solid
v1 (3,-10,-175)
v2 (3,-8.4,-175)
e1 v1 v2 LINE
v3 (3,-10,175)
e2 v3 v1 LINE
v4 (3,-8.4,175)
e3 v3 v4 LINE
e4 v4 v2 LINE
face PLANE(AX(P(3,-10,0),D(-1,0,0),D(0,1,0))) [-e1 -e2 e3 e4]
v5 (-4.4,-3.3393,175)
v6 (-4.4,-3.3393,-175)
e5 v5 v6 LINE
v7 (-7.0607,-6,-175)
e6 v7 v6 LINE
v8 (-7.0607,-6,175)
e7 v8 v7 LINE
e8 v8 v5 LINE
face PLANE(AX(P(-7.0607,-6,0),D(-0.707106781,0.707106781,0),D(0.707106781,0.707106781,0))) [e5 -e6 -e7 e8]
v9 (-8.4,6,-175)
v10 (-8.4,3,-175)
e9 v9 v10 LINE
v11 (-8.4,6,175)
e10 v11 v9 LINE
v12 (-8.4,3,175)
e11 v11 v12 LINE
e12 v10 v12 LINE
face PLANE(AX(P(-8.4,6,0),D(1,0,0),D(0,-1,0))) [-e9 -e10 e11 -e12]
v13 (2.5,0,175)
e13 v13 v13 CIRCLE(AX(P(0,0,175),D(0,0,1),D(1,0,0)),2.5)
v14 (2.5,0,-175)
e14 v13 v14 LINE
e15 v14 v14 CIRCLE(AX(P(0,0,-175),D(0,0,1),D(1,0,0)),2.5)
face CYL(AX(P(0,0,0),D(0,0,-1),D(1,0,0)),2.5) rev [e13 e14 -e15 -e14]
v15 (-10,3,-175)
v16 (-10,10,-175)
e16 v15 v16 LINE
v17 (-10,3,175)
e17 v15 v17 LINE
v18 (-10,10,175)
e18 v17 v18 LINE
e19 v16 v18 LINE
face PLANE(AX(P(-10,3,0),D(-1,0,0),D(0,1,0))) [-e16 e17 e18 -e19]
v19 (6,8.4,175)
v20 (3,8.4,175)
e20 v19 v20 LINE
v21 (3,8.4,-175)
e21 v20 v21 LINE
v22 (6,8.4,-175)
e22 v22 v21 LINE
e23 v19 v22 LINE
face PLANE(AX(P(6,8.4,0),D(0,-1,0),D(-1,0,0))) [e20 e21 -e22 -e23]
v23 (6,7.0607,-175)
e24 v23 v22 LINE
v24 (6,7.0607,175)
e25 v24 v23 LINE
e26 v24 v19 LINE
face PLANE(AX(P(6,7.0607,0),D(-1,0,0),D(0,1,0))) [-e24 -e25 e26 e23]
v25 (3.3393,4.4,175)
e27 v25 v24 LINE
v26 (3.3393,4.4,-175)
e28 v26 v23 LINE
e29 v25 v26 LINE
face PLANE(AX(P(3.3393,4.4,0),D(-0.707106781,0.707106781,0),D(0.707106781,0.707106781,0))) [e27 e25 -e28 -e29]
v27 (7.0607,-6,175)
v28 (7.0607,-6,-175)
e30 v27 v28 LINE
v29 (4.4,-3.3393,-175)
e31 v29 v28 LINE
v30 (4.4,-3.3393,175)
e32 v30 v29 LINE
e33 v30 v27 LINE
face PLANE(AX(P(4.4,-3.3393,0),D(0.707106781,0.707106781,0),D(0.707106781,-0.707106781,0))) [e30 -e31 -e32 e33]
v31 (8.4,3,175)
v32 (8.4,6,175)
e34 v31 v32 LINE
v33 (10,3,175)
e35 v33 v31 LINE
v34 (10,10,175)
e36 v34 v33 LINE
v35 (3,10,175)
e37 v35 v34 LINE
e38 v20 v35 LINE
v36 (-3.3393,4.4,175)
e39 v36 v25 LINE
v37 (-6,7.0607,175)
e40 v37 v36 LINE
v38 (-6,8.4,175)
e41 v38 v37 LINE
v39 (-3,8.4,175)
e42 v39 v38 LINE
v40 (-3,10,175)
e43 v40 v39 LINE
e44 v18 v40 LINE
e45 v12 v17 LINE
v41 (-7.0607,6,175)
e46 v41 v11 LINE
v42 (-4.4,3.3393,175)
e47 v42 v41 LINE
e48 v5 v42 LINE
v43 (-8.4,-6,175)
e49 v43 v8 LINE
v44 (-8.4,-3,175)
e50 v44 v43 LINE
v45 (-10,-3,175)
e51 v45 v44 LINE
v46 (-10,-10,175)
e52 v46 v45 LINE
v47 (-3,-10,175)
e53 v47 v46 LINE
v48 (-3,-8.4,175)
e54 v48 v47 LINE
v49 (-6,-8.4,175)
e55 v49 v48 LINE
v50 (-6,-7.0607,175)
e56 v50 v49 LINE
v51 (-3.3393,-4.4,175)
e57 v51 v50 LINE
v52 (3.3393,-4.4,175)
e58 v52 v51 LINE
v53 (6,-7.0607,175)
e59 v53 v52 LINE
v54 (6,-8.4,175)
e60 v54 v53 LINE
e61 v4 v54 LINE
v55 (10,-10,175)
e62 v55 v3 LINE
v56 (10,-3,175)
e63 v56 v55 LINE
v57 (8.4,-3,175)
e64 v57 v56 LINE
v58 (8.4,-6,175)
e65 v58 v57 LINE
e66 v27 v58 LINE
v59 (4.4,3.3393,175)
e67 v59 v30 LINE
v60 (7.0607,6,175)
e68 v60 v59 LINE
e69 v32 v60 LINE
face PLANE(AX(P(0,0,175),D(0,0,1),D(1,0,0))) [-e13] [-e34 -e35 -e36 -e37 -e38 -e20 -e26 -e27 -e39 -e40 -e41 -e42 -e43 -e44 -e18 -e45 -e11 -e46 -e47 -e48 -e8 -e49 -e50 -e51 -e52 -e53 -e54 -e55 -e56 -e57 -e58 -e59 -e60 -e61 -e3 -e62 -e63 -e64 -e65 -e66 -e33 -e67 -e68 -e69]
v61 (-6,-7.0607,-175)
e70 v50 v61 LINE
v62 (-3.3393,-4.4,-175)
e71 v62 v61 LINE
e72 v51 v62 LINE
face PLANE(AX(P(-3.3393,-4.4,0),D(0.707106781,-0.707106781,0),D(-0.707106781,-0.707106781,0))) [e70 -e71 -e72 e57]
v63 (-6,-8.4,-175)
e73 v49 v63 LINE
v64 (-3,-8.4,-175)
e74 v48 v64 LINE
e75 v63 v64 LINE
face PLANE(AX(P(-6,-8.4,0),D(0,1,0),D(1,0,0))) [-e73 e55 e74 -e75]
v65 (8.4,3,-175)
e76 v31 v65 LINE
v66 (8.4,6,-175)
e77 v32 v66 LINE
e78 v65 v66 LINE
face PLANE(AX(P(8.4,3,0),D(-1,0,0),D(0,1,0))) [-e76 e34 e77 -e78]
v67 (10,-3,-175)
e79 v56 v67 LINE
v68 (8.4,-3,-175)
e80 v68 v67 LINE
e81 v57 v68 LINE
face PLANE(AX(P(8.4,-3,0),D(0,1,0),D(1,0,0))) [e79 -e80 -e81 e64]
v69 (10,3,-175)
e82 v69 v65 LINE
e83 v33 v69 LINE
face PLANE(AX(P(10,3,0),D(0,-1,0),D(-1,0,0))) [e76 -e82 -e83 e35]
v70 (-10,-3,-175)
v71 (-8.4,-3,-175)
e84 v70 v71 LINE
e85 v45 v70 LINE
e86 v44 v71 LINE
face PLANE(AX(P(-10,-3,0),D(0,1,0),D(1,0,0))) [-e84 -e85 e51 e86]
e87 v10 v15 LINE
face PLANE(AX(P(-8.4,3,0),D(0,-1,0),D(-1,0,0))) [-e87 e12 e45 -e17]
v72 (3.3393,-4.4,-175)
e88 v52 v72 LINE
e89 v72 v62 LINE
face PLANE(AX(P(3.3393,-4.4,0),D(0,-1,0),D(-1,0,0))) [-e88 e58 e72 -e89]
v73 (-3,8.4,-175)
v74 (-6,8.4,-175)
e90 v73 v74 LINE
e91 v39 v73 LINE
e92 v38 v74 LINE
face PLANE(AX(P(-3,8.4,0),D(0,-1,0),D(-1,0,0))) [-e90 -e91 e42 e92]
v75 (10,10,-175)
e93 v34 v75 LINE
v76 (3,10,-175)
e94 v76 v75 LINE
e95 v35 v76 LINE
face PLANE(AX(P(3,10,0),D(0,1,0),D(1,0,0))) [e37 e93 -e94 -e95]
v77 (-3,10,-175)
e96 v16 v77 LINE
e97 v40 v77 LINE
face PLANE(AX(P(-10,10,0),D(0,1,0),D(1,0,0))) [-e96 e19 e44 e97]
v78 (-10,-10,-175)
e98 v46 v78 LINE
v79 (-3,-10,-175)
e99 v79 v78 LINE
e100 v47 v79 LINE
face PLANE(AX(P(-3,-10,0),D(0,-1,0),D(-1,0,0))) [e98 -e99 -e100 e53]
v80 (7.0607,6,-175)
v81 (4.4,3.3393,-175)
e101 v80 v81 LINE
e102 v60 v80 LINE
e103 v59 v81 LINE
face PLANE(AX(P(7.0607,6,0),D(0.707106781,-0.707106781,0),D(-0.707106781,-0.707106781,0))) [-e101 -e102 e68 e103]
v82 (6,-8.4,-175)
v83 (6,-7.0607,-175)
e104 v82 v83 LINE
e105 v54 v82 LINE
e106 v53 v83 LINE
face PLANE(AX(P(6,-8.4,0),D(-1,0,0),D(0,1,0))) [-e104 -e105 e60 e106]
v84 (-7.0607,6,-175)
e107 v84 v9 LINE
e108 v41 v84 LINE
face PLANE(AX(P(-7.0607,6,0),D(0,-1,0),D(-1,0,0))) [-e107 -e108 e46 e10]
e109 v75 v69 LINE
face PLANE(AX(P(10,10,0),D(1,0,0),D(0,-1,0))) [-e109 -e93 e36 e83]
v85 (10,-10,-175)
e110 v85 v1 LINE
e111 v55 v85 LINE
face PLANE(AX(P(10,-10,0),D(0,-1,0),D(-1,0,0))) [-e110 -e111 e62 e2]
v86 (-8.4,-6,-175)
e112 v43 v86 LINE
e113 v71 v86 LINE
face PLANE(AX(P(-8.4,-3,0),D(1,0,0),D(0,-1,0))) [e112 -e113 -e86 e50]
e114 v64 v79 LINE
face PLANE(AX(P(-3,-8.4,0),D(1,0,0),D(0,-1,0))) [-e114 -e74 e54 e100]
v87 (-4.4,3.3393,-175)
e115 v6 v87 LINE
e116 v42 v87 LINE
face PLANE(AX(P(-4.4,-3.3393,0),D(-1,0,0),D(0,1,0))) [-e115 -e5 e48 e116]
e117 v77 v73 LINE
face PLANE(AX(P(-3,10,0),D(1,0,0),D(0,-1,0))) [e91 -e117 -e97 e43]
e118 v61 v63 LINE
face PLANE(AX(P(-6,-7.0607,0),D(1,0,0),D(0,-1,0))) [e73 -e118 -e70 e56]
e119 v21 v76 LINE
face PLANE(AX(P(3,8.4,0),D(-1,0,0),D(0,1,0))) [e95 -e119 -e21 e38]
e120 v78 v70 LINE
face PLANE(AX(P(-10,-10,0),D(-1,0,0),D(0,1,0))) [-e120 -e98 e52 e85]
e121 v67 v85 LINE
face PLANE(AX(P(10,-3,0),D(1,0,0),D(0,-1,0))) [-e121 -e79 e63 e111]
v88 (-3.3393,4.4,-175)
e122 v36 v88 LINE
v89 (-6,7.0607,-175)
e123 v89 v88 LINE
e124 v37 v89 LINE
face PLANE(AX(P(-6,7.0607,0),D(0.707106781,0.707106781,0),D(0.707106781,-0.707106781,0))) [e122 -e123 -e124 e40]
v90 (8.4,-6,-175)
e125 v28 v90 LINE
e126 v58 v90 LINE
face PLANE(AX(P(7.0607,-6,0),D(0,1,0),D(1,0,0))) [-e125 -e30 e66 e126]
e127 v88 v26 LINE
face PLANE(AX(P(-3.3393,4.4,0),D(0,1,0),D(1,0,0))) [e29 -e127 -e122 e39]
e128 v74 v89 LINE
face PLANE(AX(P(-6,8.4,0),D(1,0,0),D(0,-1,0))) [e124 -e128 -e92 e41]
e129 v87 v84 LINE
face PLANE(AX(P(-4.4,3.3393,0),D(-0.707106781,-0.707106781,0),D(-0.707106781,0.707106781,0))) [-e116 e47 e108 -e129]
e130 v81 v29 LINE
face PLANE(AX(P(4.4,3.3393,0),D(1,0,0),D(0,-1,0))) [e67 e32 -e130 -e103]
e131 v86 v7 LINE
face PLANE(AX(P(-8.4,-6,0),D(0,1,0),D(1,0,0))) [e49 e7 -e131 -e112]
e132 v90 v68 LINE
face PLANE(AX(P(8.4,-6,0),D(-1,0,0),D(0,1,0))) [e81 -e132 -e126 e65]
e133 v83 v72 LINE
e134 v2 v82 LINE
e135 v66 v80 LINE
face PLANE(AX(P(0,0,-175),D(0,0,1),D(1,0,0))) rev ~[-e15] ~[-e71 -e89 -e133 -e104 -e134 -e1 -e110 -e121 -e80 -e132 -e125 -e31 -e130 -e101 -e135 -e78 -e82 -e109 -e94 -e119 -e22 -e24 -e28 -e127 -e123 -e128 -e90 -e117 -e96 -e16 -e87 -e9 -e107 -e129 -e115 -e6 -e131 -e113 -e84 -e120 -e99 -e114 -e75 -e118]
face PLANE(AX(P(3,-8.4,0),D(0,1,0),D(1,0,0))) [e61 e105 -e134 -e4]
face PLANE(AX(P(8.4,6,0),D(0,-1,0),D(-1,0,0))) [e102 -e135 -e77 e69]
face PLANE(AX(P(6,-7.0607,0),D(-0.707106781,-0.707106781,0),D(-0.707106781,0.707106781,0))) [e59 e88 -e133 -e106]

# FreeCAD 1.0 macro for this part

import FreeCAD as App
import Part
import Sketcher

V = App.Vector


def add_polygon(sketch, points):
    """Adds a closed chain of lines whose ends are joined by coincident constraints."""
    first, n = sketch.GeometryCount, len(points)
    for a, b in zip(points, points[1:] + points[:1]):
        sketch.addGeometry(Part.LineSegment(App.Vector(*a, 0), App.Vector(*b, 0)), False)
    for i in range(n):
        sketch.addConstraint(Sketcher.Constraint("Coincident", first + i, 2, first + (i + 1) % n, 1))

doc = App.newDocument("Part")
body = doc.addObject("PartDesign::Body", "Body")

# Sketch on XY plane
sketch1 = body.newObject("Sketcher::SketchObject", "Sketch")
sketch1.AttachmentSupport = (doc.getObject("XY_Plane"), [""])
sketch1.MapMode = "FlatFace"
add_polygon(sketch1, [(-3, 10), (-10, 10), (-10, 3), (-8.4, 3), (-8.4, 6), (-7.1, 6), (-4.4, 3.3), (-4.4, -3.3), (-7.1, -6), (-8.4, -6), (-8.4, -3), (-10, -3), (-10, -10), (-3, -10), (-3, -8.4), (-6, -8.4), (-6, -7.1), (-3.3, -4.4), (3.3, -4.4), (6, -7.1), (6, -8.4), (3, -8.4), (3, -10), (10, -10), (10, -3), (8.4, -3), (8.4, -6), (7.1, -6), (4.4, -3.3), (4.4, 3.3), (7.1, 6), (8.4, 6), (8.4, 3), (10, 3), (10, 10), (3, 10), (3, 8.4), (6, 8.4), (6, 7.1), (3.3, 4.4), (-3.3, 4.4), (-6, 7.1), (-6, 8.4), (-3, 8.4)])  # lines 0-43
sketch1.addGeometry(Part.Circle(V(0, 0, 0), V(0, 0, 1), 2.5), False)  # 44
sketch1.addConstraint([
    Sketcher.Constraint("Horizontal", 0),
    Sketcher.Constraint("Vertical", 1),
    Sketcher.Constraint("Horizontal", 2),
    Sketcher.Constraint("Vertical", 3),
    Sketcher.Constraint("Horizontal", 4),
    Sketcher.Constraint("Vertical", 6),
    Sketcher.Constraint("Horizontal", 8),
    Sketcher.Constraint("Vertical", 9),
    Sketcher.Constraint("Horizontal", 10),
    Sketcher.Constraint("Vertical", 11),
    Sketcher.Constraint("Horizontal", 12),
    Sketcher.Constraint("Vertical", 13),
    Sketcher.Constraint("Horizontal", 14),
    Sketcher.Constraint("Vertical", 15),
    Sketcher.Constraint("Horizontal", 17),
    Sketcher.Constraint("Vertical", 19),
    Sketcher.Constraint("Horizontal", 20),
    Sketcher.Constraint("Vertical", 21),
    Sketcher.Constraint("Horizontal", 22),
    Sketcher.Constraint("Vertical", 23),
    Sketcher.Constraint("Horizontal", 24),
    Sketcher.Constraint("Vertical", 25),
    Sketcher.Constraint("Horizontal", 26),
    Sketcher.Constraint("Vertical", 28),
    Sketcher.Constraint("Horizontal", 30),
    Sketcher.Constraint("Vertical", 31),
    Sketcher.Constraint("Horizontal", 32),
    Sketcher.Constraint("Vertical", 33),
    Sketcher.Constraint("Horizontal", 34),
    Sketcher.Constraint("Vertical", 35),
    Sketcher.Constraint("Horizontal", 36),
    Sketcher.Constraint("Vertical", 37),
    Sketcher.Constraint("Horizontal", 39),
    Sketcher.Constraint("Vertical", 41),
    Sketcher.Constraint("Horizontal", 42),
    Sketcher.Constraint("Vertical", 43),
    Sketcher.Constraint("Coincident", 44, 3, -1, 1),
    Sketcher.Constraint("Symmetric", 0, 2, 22, 2, -1, 1),
    Sketcher.Constraint("Symmetric", 2, 2, 24, 2, -1, 1),
    Sketcher.Constraint("Symmetric", 4, 2, 26, 2, -1, 1),
    Sketcher.Constraint("Symmetric", 5, 2, 27, 2, -1, 1),
    Sketcher.Constraint("Symmetric", 7, 2, 29, 2, -1, 1),
    Sketcher.Constraint("Symmetric", 9, 2, 31, 2, -1, 1),
    Sketcher.Constraint("Symmetric", 11, 2, 33, 2, -1, 1),
    Sketcher.Constraint("Symmetric", 13, 2, 35, 2, -1, 1),
    Sketcher.Constraint("Symmetric", 15, 2, 37, 2, -1, 1),
    Sketcher.Constraint("Symmetric", 16, 2, 38, 2, -1, 1),
    Sketcher.Constraint("Symmetric", 18, 2, 40, 2, -1, 1),
    Sketcher.Constraint("Symmetric", 20, 2, 42, 2, -1, 1),
    Sketcher.Constraint("Symmetric", 15, 2, 18, 2, -2),
    Sketcher.Constraint("Symmetric", 13, 2, 20, 2, -2),
    Sketcher.Constraint("Symmetric", 11, 2, 22, 2, -2),
    Sketcher.Constraint("Symmetric", 9, 2, 24, 2, -2),
    Sketcher.Constraint("Symmetric", 7, 2, 26, 2, -2),
    Sketcher.Constraint("Perpendicular", 5, 7),
    Sketcher.Constraint("Parallel", 7, 16),
    Sketcher.Constraint("Perpendicular", 16, 18),
    Sketcher.Constraint("Perpendicular", 27, 29),
    Sketcher.Constraint("Perpendicular", 38, 40),
    Sketcher.Constraint("Horizontal", 6, 2, 27, 2),
    Sketcher.Constraint("Equal", 34, 1),
    Sketcher.Constraint("Equal", 42, 3),
    Sketcher.Constraint("Equal", 39, 6),
    Sketcher.Constraint("Equal", 32, 13),
    Sketcher.Constraint("Equal", 30, 15),
    Sketcher.Constraint("Equal", 7, 16),
    Sketcher.Constraint("Diameter", 44, 5.0),
    Sketcher.Constraint("DistanceX", 14, 2, 14, 1, 3.0),
    Sketcher.Constraint("DistanceX", 2, 1, 2, 2, 1.6),
    Sketcher.Constraint("DistanceY", -1, 1, 1, 2, 3.0),
    Sketcher.Constraint("DistanceY", 3, 2, 0, 2, 4.0),
    Sketcher.Constraint("DistanceX", 2, 2, 5, 2, 4.0),
    Sketcher.Constraint("DistanceX", 4, 1, 4, 2, 1.3393),
])
pad1 = body.newObject("PartDesign::Pad", "Pad")
pad1.Profile = sketch1
pad1.Length = 350
pad1.Midplane = True

doc.recompute()
